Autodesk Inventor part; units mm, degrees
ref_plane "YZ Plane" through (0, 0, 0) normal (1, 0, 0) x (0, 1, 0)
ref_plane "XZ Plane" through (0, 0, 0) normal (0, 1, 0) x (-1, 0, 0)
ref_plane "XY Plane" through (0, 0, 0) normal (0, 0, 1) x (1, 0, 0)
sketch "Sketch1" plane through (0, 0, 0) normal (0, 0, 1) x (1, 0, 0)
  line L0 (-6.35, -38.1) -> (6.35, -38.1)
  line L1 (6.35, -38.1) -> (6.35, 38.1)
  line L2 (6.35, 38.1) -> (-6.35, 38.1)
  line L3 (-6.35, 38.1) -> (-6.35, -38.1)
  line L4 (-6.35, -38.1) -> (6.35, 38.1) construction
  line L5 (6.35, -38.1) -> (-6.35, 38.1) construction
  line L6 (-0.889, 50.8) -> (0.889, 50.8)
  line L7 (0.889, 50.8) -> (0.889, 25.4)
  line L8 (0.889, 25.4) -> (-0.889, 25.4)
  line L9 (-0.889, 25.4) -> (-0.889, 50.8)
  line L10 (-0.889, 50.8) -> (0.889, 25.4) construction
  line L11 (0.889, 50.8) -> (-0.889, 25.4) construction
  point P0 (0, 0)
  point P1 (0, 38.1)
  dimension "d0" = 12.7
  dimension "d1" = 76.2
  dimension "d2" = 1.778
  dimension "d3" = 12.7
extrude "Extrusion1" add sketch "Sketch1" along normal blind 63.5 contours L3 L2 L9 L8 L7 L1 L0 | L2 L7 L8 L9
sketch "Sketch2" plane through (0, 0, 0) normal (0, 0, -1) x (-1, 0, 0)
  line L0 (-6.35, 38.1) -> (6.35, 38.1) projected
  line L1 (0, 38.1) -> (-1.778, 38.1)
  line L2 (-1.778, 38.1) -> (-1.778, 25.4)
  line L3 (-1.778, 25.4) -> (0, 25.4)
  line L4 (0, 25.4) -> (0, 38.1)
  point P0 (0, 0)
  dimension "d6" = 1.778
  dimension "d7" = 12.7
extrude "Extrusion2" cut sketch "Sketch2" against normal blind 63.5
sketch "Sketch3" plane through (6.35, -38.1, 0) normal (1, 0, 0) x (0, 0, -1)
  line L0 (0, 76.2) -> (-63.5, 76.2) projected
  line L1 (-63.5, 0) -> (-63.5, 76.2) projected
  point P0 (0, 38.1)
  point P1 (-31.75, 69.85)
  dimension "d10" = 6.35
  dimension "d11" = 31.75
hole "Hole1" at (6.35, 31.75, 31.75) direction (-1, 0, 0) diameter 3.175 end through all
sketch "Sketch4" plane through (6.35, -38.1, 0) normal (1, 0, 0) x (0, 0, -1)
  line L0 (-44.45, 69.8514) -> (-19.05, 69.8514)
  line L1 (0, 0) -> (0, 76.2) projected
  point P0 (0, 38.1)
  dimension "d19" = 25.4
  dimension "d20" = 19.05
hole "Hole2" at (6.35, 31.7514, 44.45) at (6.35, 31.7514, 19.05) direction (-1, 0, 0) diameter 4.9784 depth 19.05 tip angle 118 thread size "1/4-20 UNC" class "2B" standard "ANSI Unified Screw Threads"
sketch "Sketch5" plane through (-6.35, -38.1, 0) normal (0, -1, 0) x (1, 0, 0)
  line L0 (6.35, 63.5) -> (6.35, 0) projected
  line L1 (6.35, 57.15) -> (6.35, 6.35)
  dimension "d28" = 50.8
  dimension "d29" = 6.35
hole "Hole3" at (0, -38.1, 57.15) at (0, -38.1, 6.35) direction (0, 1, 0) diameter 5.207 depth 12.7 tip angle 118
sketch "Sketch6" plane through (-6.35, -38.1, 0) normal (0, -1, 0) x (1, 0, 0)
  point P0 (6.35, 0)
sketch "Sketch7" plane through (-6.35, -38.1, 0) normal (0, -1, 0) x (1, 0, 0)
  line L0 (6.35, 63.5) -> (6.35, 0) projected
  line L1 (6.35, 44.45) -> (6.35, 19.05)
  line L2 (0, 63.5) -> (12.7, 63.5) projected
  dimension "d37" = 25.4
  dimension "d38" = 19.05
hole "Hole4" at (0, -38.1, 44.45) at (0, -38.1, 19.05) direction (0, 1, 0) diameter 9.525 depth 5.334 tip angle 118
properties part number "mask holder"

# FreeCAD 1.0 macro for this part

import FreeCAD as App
import Part
import Sketcher
Q = App.Units.Quantity


def add_polygon(sketch, points):
    """Adds a closed chain of lines whose ends are joined by coincident constraints."""
    first, n = sketch.GeometryCount, len(points)
    for a, b in zip(points, points[1:] + points[:1]):
        sketch.addGeometry(Part.LineSegment(App.Vector(*a, 0), App.Vector(*b, 0)), False)
    for i in range(n):
        sketch.addConstraint(Sketcher.Constraint("Coincident", first + i, 2, first + (i + 1) % n, 1))

doc = App.newDocument("Part")
body = doc.addObject("PartDesign::Body", "Body")

# Sketch on XY plane
sketch1 = body.newObject("Sketcher::SketchObject", "Sketch")
sketch1.AttachmentSupport = (doc.getObject("XY_Plane"), [""])
sketch1.MapMode = "FlatFace"
add_polygon(sketch1, [(-6, 38), (-6, -38), (6, -38), (6, 38)])  # lines 0-3
sketch1.addConstraint(Sketcher.Constraint("Vertical", 0))
sketch1.addConstraint(Sketcher.Constraint("Horizontal", 1))
sketch1.addConstraint(Sketcher.Constraint("Vertical", 2))
sketch1.addConstraint(Sketcher.Constraint("Horizontal", 3))
sketch1.addConstraint(Sketcher.Constraint("Symmetric", 0, 2, 2, 2, -1, 1))
sketch1.addConstraint(Sketcher.Constraint("DistanceY", 0, 2, 0, 1, Q("3 in")))
sketch1.addConstraint(Sketcher.Constraint("DistanceX", 1, 1, 1, 2, Q("0.5 in")))
pad1 = body.newObject("PartDesign::Pad", "Pad")
pad1.Profile = sketch1
pad1.Length = Q("2.5 in")

# Sketch on XY plane
sketch2 = body.newObject("Sketcher::SketchObject", "Sketch001")
sketch2.AttachmentSupport = (doc.getObject("XY_Plane"), [""])
sketch2.MapMode = "FlatFace"
add_polygon(sketch2, [(0, 38.1), (1.8, 38.1), (1.8, 25.4), (0, 25.4)])  # lines 0-3
sketch2.addConstraint(Sketcher.Constraint("Horizontal", 0))
sketch2.addConstraint(Sketcher.Constraint("Vertical", 1))
sketch2.addConstraint(Sketcher.Constraint("Horizontal", 2))
sketch2.addConstraint(Sketcher.Constraint("Vertical", 3))
sketch2.addConstraint(Sketcher.Constraint("PointOnObject", 2, 2, -2))
sketch2.addConstraint(Sketcher.Constraint("DistanceY", 1, 2, 1, 1, Q("0.5 in")))
sketch2.addConstraint(Sketcher.Constraint("DistanceX", 0, 1, 0, 2, Q("0.07 in")))
sketch2.addConstraint(Sketcher.Constraint("DistanceY", -1, 1, 1, 2, Q("1 in")))
pocket1 = body.newObject("PartDesign::Pocket", "Pocket")
pocket1.Profile = sketch2
pocket1.Length = Q("2.5 in")
pocket1.Reversed = True

# Sketch on YZ plane
sketch3 = body.newObject("Sketcher::SketchObject", "Sketch002")
sketch3.AttachmentSupport = (doc.getObject("YZ_Plane"), [""])
sketch3.MapMode = "FlatFace"
sketch3.AttachmentOffset = App.Placement(App.Vector(0, 0, 0.25 * 25.4), App.Rotation())
sketch3.addGeometry(Part.Circle(App.Vector(31.8, 31.8, 0), App.Vector(0, 0, 1), 1.6), False)
sketch3.addConstraint(Sketcher.Constraint("Diameter", 0, Q("0.125 in")))
sketch3.addConstraint(Sketcher.Constraint("DistanceX", -1, 1, 0, 3, Q("1.25 in")))
sketch3.addConstraint(Sketcher.Constraint("DistanceY", -1, 1, 0, 3, Q("1.25 in")))
doc.recompute()
hole = body.newObject("PartDesign::Hole", "Hole")
hole.Profile = sketch3
hole.ThreadType = "None"
hole.Diameter = Q("0.125 in")
hole.DepthType = "ThroughAll"

# Sketch on YZ plane
sketch4 = body.newObject("Sketcher::SketchObject", "Sketch003")
sketch4.AttachmentSupport = (doc.getObject("YZ_Plane"), [""])
sketch4.MapMode = "FlatFace"
sketch4.AttachmentOffset = App.Placement(App.Vector(0, 0, 0.25 * 25.4), App.Rotation())
sketch4.addGeometry(Part.Circle(App.Vector(31.8, 44.5, 0), App.Vector(0, 0, 1), 2.5), False)
sketch4.addGeometry(Part.Circle(App.Vector(31.8, 19.1, 0), App.Vector(0, 0, 1), 2.5), False)
sketch4.addConstraint(Sketcher.Constraint("Equal", 0, 1))
sketch4.addConstraint(Sketcher.Constraint("Vertical", 0, 3, 1, 3))
sketch4.addConstraint(Sketcher.Constraint("Diameter", 0, Q("0.196 in")))
sketch4.addConstraint(Sketcher.Constraint("DistanceY", 1, 3, 0, 3, Q("1 in")))
sketch4.addConstraint(Sketcher.Constraint("DistanceY", -1, 1, 0, 3, Q("1.75 in")))
sketch4.addConstraint(Sketcher.Constraint("DistanceX", -1, 1, 0, 3, Q("31.7514 mm")))
doc.recompute()
hole2 = body.newObject("PartDesign::Hole", "Hole001")
hole2.Profile = sketch4
hole2.ThreadType = "None"
hole2.Diameter = Q("0.196 in")
hole2.DepthType = "Dimension"
hole2.Depth = Q("0.75 in")
hole2.DrillPoint = "Angled"
hole2.DrillPointAngle = 118

# Sketch on XZ plane
sketch5 = body.newObject("Sketcher::SketchObject", "Sketch004")
sketch5.AttachmentSupport = (doc.getObject("XZ_Plane"), [""])
sketch5.MapMode = "FlatFace"
sketch5.AttachmentOffset = App.Placement(App.Vector(0, 0, 1.5 * 25.4), App.Rotation())
sketch5.addGeometry(Part.Circle(App.Vector(0, 57.1, 0), App.Vector(0, 0, 1), 2.6), False)
sketch5.addGeometry(Part.Circle(App.Vector(0, 6.3, 0), App.Vector(0, 0, 1), 2.6), False)
sketch5.addConstraint(Sketcher.Constraint("Equal", 0, 1))
sketch5.addConstraint(Sketcher.Constraint("PointOnObject", 0, 3, -2))
sketch5.addConstraint(Sketcher.Constraint("PointOnObject", 1, 3, -2))
sketch5.addConstraint(Sketcher.Constraint("Diameter", 0, Q("0.205 in")))
sketch5.addConstraint(Sketcher.Constraint("DistanceY", 1, 3, 0, 3, Q("2 in")))
sketch5.addConstraint(Sketcher.Constraint("DistanceY", -1, 1, 0, 3, Q("2.25 in")))
doc.recompute()
hole3 = body.newObject("PartDesign::Hole", "Hole002")
hole3.Profile = sketch5
hole3.ThreadType = "None"
hole3.Diameter = Q("0.205 in")
hole3.DepthType = "Dimension"
hole3.Depth = Q("0.5 in")
hole3.DrillPoint = "Angled"
hole3.DrillPointAngle = 118

# Sketch on XZ plane
sketch6 = body.newObject("Sketcher::SketchObject", "Sketch005")
sketch6.AttachmentSupport = (doc.getObject("XZ_Plane"), [""])
sketch6.MapMode = "FlatFace"
sketch6.AttachmentOffset = App.Placement(App.Vector(0, 0, 1.5 * 25.4), App.Rotation())
sketch6.addGeometry(Part.Circle(App.Vector(0, 44.5, 0), App.Vector(0, 0, 1), 4.8), False)
sketch6.addGeometry(Part.Circle(App.Vector(0, 19.1, 0), App.Vector(0, 0, 1), 4.8), False)
sketch6.addConstraint(Sketcher.Constraint("Equal", 0, 1))
sketch6.addConstraint(Sketcher.Constraint("PointOnObject", 0, 3, -2))
sketch6.addConstraint(Sketcher.Constraint("PointOnObject", 1, 3, -2))
sketch6.addConstraint(Sketcher.Constraint("Diameter", 0, Q("0.375 in")))
sketch6.addConstraint(Sketcher.Constraint("DistanceY", 1, 3, 0, 3, Q("1 in")))
sketch6.addConstraint(Sketcher.Constraint("DistanceY", -1, 1, 0, 3, Q("1.75 in")))
doc.recompute()
hole4 = body.newObject("PartDesign::Hole", "Hole003")
hole4.Profile = sketch6
hole4.ThreadType = "None"
hole4.Diameter = Q("0.375 in")
hole4.DepthType = "Dimension"
hole4.Depth = Q("0.21 in")
hole4.DrillPoint = "Angled"
hole4.DrillPointAngle = 118

doc.recompute()
